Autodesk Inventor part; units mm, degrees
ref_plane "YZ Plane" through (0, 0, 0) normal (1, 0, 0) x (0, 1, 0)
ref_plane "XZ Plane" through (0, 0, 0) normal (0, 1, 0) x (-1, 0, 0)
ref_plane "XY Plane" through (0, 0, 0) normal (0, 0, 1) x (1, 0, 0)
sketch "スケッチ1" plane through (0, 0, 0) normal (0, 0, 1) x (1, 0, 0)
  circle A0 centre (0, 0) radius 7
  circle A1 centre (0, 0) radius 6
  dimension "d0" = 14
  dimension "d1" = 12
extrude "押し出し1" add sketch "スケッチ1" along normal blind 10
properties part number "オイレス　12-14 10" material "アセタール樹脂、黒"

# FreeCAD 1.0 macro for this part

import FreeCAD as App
import Part
import Sketcher

V = App.Vector
Q = App.Units.Quantity

doc = App.newDocument("Part")
body = doc.addObject("PartDesign::Body", "Body")

sketch1 = body.newObject("Sketcher::SketchObject", "Sketch")
sketch1.AttachmentSupport = (doc.getObject("XY_Plane"), [""])
sketch1.MapMode = "FlatFace"
sketch1.addGeometry([
    Part.Circle(V(0, 0, 0), V(0, 0, 1), 7),
    Part.Circle(V(0, 0, 0), V(0, 0, 1), 6),
], False)
sketch1.addConstraint([
    Sketcher.Constraint("Coincident", 0, 3, -1, 1),
    Sketcher.Constraint("Coincident", 1, 3, -1, 1),
    Sketcher.Constraint("Diameter", 0, Q("14 mm")),
    Sketcher.Constraint("Diameter", 1, Q("12 mm")),
])
pad1 = body.newObject("PartDesign::Pad", "Pad")
pad1.Profile = sketch1
pad1.Length = 10

doc.recompute()
